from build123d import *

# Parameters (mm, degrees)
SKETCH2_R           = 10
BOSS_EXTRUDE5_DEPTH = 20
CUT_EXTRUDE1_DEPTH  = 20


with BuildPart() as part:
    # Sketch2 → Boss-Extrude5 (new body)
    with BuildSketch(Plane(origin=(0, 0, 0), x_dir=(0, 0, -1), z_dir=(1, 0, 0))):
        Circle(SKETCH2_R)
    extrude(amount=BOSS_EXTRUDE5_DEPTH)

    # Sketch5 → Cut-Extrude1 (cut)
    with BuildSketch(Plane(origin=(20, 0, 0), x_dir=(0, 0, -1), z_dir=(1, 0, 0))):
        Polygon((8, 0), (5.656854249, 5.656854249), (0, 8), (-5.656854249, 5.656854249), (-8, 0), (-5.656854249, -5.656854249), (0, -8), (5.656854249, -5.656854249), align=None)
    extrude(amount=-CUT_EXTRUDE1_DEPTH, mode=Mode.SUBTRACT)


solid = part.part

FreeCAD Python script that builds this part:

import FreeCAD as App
import Part
import Sketcher

V = App.Vector
Q = App.Units.Quantity


def add_polygon(sketch, points):
    """Adds a closed chain of lines whose ends are joined by coincident constraints."""
    first, n = sketch.GeometryCount, len(points)
    for a, b in zip(points, points[1:] + points[:1]):
        sketch.addGeometry(Part.LineSegment(App.Vector(*a, 0), App.Vector(*b, 0)), False)
    for i in range(n):
        sketch.addConstraint(Sketcher.Constraint("Coincident", first + i, 2, first + (i + 1) % n, 1))

doc = App.newDocument("Part")
body = doc.addObject("PartDesign::Body", "Body")

sketch1 = body.newObject("Sketcher::SketchObject", "Sketch")
sketch1.AttachmentSupport = (doc.getObject("YZ_Plane"), [""])
sketch1.MapMode = "FlatFace"
sketch1.addGeometry(Part.Circle(V(0, 0, 0), V(0, 0, 1), 10), False)
sketch1.addConstraint([
    Sketcher.Constraint("Coincident", 0, 3, -1, 1),
    Sketcher.Constraint("Diameter", 0, 20.0),
])
pad1 = body.newObject("PartDesign::Pad", "Pad")
pad1.Profile = sketch1
pad1.Length = 20

sketch2 = body.newObject("Sketcher::SketchObject", "Sketch001")
sketch2.AttachmentSupport = (doc.getObject("YZ_Plane"), [""])
sketch2.MapMode = "FlatFace"
sketch2.AttachmentOffset = App.Placement(V(0, 0, 20), App.Rotation())
add_polygon(sketch2, [(0, -8), (5.656854, -5.656854), (8, 0), (5.656854, 5.656854), (0, 8), (-5.656854, 5.656854), (-8, 0), (-5.656854, -5.656854)])
sketch2.addConstraint([
    Sketcher.Constraint("Symmetric", 0, 2, 4, 2, -1, 1),
    Sketcher.Constraint("Symmetric", 1, 2, 5, 2, -1, 1),
    Sketcher.Constraint("Symmetric", 2, 2, 6, 2, -1, 1),
    Sketcher.Constraint("Symmetric", 3, 2, 7, 2, -1, 1),
    Sketcher.Constraint("Symmetric", 2, 2, 4, 2, -2),
    Sketcher.Constraint("PointOnObject", 1, 2, -1),
    Sketcher.Constraint("PointOnObject", 3, 2, -2),
    Sketcher.Constraint("Perpendicular", 0, 2),
    Sketcher.Constraint("Equal", 0, 1),
    Sketcher.Constraint("DistanceX", -1, 1, 1, 2, 8.0),
    Sketcher.Constraint("Angle", 0, Q("22.5 deg")),
])
pocket1 = body.newObject("PartDesign::Pocket", "Pocket")
pocket1.Profile = sketch2
pocket1.Length = 20

doc.recompute()
